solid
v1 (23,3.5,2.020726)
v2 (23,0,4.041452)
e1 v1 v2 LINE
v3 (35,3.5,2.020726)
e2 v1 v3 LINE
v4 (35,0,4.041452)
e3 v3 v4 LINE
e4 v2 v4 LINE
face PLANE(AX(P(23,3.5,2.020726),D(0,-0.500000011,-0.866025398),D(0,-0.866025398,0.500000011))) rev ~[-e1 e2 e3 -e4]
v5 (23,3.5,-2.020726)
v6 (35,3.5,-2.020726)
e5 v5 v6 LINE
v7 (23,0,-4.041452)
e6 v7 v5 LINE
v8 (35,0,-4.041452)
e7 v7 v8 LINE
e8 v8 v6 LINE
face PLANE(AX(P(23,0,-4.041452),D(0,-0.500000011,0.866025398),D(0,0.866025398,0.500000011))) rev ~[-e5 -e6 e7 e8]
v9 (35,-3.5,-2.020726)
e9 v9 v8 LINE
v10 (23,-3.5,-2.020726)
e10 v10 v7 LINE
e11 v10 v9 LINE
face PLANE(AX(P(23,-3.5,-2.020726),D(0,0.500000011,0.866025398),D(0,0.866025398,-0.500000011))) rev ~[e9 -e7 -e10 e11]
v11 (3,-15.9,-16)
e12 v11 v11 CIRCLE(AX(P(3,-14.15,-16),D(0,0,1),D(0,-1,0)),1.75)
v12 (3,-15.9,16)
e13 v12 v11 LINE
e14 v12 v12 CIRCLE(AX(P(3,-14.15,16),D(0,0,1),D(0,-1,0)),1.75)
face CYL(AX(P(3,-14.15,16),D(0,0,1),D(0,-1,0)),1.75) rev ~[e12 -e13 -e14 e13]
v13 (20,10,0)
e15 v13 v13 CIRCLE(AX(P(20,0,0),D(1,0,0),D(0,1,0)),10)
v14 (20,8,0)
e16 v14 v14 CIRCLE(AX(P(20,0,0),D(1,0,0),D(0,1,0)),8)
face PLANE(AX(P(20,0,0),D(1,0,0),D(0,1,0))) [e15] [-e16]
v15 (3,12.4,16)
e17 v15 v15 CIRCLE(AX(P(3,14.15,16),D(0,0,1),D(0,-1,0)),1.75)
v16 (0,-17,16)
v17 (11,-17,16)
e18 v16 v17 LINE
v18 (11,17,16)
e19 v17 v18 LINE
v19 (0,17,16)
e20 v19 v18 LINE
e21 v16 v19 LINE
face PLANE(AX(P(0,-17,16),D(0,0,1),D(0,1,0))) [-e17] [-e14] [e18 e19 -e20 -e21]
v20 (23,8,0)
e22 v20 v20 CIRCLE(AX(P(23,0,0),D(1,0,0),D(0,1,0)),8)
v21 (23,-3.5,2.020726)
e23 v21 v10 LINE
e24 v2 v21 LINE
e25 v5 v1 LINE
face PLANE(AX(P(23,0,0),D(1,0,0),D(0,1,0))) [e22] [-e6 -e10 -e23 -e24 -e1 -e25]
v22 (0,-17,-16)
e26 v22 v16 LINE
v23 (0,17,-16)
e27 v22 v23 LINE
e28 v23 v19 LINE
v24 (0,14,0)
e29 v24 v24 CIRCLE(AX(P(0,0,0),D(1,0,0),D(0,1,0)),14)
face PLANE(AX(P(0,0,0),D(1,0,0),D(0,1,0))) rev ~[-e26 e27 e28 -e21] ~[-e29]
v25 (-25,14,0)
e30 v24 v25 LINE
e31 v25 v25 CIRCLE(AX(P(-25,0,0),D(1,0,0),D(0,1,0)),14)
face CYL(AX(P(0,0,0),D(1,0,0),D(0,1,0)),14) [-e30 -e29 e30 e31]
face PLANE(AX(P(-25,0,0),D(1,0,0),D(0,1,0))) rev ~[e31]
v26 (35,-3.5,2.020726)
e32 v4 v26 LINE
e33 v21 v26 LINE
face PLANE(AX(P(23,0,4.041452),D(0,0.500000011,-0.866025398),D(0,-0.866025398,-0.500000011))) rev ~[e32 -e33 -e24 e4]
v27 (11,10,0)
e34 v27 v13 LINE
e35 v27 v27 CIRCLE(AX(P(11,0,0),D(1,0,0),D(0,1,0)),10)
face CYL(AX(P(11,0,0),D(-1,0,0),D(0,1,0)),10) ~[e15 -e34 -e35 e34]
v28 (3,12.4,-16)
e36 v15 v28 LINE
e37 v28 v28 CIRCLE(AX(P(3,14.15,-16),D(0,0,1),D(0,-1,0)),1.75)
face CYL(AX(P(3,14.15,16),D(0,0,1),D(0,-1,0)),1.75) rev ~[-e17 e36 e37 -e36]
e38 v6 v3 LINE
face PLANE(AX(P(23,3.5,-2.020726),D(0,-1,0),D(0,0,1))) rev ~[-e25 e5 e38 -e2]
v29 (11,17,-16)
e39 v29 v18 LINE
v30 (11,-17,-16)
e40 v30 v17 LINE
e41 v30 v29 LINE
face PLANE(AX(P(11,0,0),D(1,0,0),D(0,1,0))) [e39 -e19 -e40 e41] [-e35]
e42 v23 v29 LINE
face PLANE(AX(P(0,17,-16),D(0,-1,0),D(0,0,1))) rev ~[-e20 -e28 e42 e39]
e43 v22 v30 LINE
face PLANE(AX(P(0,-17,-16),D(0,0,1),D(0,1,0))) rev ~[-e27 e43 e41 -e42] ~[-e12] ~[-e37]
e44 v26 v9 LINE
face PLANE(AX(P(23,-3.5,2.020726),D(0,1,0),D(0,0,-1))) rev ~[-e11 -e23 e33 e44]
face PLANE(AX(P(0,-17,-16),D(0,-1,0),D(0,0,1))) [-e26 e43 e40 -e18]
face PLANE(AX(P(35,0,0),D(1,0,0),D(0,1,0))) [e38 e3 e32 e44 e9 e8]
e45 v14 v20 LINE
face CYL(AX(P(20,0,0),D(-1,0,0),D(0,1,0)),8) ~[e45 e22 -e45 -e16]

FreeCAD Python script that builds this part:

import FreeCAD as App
import Part
import Sketcher

V = App.Vector
Q = App.Units.Quantity


def add_polygon(sketch, points):
    """Adds a closed chain of lines whose ends are joined by coincident constraints."""
    first, n = sketch.GeometryCount, len(points)
    for a, b in zip(points, points[1:] + points[:1]):
        sketch.addGeometry(Part.LineSegment(App.Vector(*a, 0), App.Vector(*b, 0)), False)
    for i in range(n):
        sketch.addConstraint(Sketcher.Constraint("Coincident", first + i, 2, first + (i + 1) % n, 1))

doc = App.newDocument("Part")
body = doc.addObject("PartDesign::Body", "Body")

sketch1 = doc.addObject("Sketcher::SketchObject", "Sketch")
body.addObject(sketch1)
sketch1.AttachmentSupport = (doc.YZ_Plane, [""])
sketch1.MapMode = "FlatFace"
sketch1.addGeometry(Part.Circle(V(0, 0, 0), V(0, 0, 1), 14), False)
sketch1.addConstraint([
    Sketcher.Constraint("Coincident", 0, 3, -1, 1),
    Sketcher.Constraint("Diameter", 0, Q("28 mm")),
])
pad1 = doc.addObject("PartDesign::Pad", "Pad")
body.addObject(pad1)
pad1.Profile = sketch1
pad1.Length = 25
pad1.Reversed = True

sketch2 = doc.addObject("Sketcher::SketchObject", "Sketch001")
body.addObject(sketch2)
sketch2.AttachmentSupport = (doc.YZ_Plane, [""])
sketch2.MapMode = "FlatFace"
add_polygon(sketch2, [(-17, 16), (-17, -16), (17, -16), (17, 16)])
sketch2.addConstraint([
    Sketcher.Constraint("Vertical", 0),
    Sketcher.Constraint("Horizontal", 1),
    Sketcher.Constraint("Vertical", 2),
    Sketcher.Constraint("Horizontal", 3),
    Sketcher.Constraint("Symmetric", 0, 2, 2, 2, -1, 1),
    Sketcher.Constraint("DistanceX", 1, 1, 1, 2, Q("34 mm")),
    Sketcher.Constraint("DistanceY", 0, 2, 0, 1, Q("32 mm")),
])
pad2 = doc.addObject("PartDesign::Pad", "Pad001")
body.addObject(pad2)
pad2.Profile = sketch2
pad2.Length = 11

sketch3 = doc.addObject("Sketcher::SketchObject", "Sketch002")
body.addObject(sketch3)
sketch3.AttachmentSupport = (doc.YZ_Plane, [""])
sketch3.MapMode = "FlatFace"
sketch3.AttachmentOffset = App.Placement(V(0, 0, 11), App.Rotation())
sketch3.addGeometry(Part.Circle(V(0, 0, 0), V(0, 0, 1), 10), False)
sketch3.addConstraint([
    Sketcher.Constraint("Coincident", 0, 3, -1, 1),
    Sketcher.Constraint("Diameter", 0, Q("20 mm")),
])
pad3 = doc.addObject("PartDesign::Pad", "Pad002")
body.addObject(pad3)
pad3.Profile = sketch3
pad3.Length = 9

sketch4 = doc.addObject("Sketcher::SketchObject", "Sketch003")
body.addObject(sketch4)
sketch4.AttachmentSupport = (doc.YZ_Plane, [""])
sketch4.MapMode = "FlatFace"
sketch4.AttachmentOffset = App.Placement(V(0, 0, 20), App.Rotation())
sketch4.addGeometry(Part.Circle(V(0, 0, 0), V(0, 0, 1), 8), False)
sketch4.addConstraint([
    Sketcher.Constraint("Coincident", 0, 3, -1, 1),
    Sketcher.Constraint("Diameter", 0, Q("16 mm")),
])
pad4 = doc.addObject("PartDesign::Pad", "Pad003")
body.addObject(pad4)
pad4.Profile = sketch4
pad4.Length = 3

sketch5 = doc.addObject("Sketcher::SketchObject", "Sketch004")
body.addObject(sketch5)
sketch5.AttachmentSupport = (doc.YZ_Plane, [""])
sketch5.MapMode = "FlatFace"
sketch5.AttachmentOffset = App.Placement(V(0, 0, 23), App.Rotation())
add_polygon(sketch5, [(0, 4.041452), (-3.5, 2.020726), (-3.5, -2.020726), (0, -4.041452), (3.5, -2.020726), (3.5, 2.020726)])
sketch5.addConstraint([
    Sketcher.Constraint("Vertical", 1),
    Sketcher.Constraint("Vertical", 4),
    Sketcher.Constraint("Symmetric", 0, 2, 3, 2, -1, 1),
    Sketcher.Constraint("Symmetric", 2, 2, 5, 2, -1, 1),
    Sketcher.Constraint("PointOnObject", 2, 2, -2),
    Sketcher.Constraint("Parallel", 2, 5),
    Sketcher.Constraint("Horizontal", 1, 2, 3, 2),
    Sketcher.Constraint("Angle", 0, Q("-149.999999 deg")),
    Sketcher.Constraint("DistanceX", 1, 2, 3, 2, Q("7 mm")),
    Sketcher.Constraint("DistanceY", 1, 2, 1, 1, Q("4.041452 mm")),
])
pad5 = doc.addObject("PartDesign::Pad", "Pad004")
body.addObject(pad5)
pad5.Profile = sketch5
pad5.Length = 12

sketch6 = doc.addObject("Sketcher::SketchObject", "Sketch005")
body.addObject(sketch6)
sketch6.AttachmentSupport = (doc.XY_Plane, [""])
sketch6.MapMode = "FlatFace"
sketch6.AttachmentOffset = App.Placement(V(0, 0, 16), App.Rotation())
sketch6.addGeometry([
    Part.Circle(V(3, 14.15, 0), V(0, 0, 1), 1.75),
    Part.Circle(V(3, -14.15, 0), V(0, 0, 1), 1.75),
], False)
sketch6.addConstraint([
    Sketcher.Constraint("Equal", 0, 1),
    Sketcher.Constraint("Symmetric", 0, 3, 1, 3, -1),
    Sketcher.Constraint("Diameter", 0, Q("3.5 mm")),
    Sketcher.Constraint("DistanceX", -1, 1, 0, 3, Q("3 mm")),
    Sketcher.Constraint("DistanceY", 1, 3, 0, 3, Q("28.3 mm")),
])
pocket1 = doc.addObject("PartDesign::Pocket", "Pocket")
body.addObject(pocket1)
pocket1.Profile = sketch6
pocket1.Length = 100

doc.recompute()
